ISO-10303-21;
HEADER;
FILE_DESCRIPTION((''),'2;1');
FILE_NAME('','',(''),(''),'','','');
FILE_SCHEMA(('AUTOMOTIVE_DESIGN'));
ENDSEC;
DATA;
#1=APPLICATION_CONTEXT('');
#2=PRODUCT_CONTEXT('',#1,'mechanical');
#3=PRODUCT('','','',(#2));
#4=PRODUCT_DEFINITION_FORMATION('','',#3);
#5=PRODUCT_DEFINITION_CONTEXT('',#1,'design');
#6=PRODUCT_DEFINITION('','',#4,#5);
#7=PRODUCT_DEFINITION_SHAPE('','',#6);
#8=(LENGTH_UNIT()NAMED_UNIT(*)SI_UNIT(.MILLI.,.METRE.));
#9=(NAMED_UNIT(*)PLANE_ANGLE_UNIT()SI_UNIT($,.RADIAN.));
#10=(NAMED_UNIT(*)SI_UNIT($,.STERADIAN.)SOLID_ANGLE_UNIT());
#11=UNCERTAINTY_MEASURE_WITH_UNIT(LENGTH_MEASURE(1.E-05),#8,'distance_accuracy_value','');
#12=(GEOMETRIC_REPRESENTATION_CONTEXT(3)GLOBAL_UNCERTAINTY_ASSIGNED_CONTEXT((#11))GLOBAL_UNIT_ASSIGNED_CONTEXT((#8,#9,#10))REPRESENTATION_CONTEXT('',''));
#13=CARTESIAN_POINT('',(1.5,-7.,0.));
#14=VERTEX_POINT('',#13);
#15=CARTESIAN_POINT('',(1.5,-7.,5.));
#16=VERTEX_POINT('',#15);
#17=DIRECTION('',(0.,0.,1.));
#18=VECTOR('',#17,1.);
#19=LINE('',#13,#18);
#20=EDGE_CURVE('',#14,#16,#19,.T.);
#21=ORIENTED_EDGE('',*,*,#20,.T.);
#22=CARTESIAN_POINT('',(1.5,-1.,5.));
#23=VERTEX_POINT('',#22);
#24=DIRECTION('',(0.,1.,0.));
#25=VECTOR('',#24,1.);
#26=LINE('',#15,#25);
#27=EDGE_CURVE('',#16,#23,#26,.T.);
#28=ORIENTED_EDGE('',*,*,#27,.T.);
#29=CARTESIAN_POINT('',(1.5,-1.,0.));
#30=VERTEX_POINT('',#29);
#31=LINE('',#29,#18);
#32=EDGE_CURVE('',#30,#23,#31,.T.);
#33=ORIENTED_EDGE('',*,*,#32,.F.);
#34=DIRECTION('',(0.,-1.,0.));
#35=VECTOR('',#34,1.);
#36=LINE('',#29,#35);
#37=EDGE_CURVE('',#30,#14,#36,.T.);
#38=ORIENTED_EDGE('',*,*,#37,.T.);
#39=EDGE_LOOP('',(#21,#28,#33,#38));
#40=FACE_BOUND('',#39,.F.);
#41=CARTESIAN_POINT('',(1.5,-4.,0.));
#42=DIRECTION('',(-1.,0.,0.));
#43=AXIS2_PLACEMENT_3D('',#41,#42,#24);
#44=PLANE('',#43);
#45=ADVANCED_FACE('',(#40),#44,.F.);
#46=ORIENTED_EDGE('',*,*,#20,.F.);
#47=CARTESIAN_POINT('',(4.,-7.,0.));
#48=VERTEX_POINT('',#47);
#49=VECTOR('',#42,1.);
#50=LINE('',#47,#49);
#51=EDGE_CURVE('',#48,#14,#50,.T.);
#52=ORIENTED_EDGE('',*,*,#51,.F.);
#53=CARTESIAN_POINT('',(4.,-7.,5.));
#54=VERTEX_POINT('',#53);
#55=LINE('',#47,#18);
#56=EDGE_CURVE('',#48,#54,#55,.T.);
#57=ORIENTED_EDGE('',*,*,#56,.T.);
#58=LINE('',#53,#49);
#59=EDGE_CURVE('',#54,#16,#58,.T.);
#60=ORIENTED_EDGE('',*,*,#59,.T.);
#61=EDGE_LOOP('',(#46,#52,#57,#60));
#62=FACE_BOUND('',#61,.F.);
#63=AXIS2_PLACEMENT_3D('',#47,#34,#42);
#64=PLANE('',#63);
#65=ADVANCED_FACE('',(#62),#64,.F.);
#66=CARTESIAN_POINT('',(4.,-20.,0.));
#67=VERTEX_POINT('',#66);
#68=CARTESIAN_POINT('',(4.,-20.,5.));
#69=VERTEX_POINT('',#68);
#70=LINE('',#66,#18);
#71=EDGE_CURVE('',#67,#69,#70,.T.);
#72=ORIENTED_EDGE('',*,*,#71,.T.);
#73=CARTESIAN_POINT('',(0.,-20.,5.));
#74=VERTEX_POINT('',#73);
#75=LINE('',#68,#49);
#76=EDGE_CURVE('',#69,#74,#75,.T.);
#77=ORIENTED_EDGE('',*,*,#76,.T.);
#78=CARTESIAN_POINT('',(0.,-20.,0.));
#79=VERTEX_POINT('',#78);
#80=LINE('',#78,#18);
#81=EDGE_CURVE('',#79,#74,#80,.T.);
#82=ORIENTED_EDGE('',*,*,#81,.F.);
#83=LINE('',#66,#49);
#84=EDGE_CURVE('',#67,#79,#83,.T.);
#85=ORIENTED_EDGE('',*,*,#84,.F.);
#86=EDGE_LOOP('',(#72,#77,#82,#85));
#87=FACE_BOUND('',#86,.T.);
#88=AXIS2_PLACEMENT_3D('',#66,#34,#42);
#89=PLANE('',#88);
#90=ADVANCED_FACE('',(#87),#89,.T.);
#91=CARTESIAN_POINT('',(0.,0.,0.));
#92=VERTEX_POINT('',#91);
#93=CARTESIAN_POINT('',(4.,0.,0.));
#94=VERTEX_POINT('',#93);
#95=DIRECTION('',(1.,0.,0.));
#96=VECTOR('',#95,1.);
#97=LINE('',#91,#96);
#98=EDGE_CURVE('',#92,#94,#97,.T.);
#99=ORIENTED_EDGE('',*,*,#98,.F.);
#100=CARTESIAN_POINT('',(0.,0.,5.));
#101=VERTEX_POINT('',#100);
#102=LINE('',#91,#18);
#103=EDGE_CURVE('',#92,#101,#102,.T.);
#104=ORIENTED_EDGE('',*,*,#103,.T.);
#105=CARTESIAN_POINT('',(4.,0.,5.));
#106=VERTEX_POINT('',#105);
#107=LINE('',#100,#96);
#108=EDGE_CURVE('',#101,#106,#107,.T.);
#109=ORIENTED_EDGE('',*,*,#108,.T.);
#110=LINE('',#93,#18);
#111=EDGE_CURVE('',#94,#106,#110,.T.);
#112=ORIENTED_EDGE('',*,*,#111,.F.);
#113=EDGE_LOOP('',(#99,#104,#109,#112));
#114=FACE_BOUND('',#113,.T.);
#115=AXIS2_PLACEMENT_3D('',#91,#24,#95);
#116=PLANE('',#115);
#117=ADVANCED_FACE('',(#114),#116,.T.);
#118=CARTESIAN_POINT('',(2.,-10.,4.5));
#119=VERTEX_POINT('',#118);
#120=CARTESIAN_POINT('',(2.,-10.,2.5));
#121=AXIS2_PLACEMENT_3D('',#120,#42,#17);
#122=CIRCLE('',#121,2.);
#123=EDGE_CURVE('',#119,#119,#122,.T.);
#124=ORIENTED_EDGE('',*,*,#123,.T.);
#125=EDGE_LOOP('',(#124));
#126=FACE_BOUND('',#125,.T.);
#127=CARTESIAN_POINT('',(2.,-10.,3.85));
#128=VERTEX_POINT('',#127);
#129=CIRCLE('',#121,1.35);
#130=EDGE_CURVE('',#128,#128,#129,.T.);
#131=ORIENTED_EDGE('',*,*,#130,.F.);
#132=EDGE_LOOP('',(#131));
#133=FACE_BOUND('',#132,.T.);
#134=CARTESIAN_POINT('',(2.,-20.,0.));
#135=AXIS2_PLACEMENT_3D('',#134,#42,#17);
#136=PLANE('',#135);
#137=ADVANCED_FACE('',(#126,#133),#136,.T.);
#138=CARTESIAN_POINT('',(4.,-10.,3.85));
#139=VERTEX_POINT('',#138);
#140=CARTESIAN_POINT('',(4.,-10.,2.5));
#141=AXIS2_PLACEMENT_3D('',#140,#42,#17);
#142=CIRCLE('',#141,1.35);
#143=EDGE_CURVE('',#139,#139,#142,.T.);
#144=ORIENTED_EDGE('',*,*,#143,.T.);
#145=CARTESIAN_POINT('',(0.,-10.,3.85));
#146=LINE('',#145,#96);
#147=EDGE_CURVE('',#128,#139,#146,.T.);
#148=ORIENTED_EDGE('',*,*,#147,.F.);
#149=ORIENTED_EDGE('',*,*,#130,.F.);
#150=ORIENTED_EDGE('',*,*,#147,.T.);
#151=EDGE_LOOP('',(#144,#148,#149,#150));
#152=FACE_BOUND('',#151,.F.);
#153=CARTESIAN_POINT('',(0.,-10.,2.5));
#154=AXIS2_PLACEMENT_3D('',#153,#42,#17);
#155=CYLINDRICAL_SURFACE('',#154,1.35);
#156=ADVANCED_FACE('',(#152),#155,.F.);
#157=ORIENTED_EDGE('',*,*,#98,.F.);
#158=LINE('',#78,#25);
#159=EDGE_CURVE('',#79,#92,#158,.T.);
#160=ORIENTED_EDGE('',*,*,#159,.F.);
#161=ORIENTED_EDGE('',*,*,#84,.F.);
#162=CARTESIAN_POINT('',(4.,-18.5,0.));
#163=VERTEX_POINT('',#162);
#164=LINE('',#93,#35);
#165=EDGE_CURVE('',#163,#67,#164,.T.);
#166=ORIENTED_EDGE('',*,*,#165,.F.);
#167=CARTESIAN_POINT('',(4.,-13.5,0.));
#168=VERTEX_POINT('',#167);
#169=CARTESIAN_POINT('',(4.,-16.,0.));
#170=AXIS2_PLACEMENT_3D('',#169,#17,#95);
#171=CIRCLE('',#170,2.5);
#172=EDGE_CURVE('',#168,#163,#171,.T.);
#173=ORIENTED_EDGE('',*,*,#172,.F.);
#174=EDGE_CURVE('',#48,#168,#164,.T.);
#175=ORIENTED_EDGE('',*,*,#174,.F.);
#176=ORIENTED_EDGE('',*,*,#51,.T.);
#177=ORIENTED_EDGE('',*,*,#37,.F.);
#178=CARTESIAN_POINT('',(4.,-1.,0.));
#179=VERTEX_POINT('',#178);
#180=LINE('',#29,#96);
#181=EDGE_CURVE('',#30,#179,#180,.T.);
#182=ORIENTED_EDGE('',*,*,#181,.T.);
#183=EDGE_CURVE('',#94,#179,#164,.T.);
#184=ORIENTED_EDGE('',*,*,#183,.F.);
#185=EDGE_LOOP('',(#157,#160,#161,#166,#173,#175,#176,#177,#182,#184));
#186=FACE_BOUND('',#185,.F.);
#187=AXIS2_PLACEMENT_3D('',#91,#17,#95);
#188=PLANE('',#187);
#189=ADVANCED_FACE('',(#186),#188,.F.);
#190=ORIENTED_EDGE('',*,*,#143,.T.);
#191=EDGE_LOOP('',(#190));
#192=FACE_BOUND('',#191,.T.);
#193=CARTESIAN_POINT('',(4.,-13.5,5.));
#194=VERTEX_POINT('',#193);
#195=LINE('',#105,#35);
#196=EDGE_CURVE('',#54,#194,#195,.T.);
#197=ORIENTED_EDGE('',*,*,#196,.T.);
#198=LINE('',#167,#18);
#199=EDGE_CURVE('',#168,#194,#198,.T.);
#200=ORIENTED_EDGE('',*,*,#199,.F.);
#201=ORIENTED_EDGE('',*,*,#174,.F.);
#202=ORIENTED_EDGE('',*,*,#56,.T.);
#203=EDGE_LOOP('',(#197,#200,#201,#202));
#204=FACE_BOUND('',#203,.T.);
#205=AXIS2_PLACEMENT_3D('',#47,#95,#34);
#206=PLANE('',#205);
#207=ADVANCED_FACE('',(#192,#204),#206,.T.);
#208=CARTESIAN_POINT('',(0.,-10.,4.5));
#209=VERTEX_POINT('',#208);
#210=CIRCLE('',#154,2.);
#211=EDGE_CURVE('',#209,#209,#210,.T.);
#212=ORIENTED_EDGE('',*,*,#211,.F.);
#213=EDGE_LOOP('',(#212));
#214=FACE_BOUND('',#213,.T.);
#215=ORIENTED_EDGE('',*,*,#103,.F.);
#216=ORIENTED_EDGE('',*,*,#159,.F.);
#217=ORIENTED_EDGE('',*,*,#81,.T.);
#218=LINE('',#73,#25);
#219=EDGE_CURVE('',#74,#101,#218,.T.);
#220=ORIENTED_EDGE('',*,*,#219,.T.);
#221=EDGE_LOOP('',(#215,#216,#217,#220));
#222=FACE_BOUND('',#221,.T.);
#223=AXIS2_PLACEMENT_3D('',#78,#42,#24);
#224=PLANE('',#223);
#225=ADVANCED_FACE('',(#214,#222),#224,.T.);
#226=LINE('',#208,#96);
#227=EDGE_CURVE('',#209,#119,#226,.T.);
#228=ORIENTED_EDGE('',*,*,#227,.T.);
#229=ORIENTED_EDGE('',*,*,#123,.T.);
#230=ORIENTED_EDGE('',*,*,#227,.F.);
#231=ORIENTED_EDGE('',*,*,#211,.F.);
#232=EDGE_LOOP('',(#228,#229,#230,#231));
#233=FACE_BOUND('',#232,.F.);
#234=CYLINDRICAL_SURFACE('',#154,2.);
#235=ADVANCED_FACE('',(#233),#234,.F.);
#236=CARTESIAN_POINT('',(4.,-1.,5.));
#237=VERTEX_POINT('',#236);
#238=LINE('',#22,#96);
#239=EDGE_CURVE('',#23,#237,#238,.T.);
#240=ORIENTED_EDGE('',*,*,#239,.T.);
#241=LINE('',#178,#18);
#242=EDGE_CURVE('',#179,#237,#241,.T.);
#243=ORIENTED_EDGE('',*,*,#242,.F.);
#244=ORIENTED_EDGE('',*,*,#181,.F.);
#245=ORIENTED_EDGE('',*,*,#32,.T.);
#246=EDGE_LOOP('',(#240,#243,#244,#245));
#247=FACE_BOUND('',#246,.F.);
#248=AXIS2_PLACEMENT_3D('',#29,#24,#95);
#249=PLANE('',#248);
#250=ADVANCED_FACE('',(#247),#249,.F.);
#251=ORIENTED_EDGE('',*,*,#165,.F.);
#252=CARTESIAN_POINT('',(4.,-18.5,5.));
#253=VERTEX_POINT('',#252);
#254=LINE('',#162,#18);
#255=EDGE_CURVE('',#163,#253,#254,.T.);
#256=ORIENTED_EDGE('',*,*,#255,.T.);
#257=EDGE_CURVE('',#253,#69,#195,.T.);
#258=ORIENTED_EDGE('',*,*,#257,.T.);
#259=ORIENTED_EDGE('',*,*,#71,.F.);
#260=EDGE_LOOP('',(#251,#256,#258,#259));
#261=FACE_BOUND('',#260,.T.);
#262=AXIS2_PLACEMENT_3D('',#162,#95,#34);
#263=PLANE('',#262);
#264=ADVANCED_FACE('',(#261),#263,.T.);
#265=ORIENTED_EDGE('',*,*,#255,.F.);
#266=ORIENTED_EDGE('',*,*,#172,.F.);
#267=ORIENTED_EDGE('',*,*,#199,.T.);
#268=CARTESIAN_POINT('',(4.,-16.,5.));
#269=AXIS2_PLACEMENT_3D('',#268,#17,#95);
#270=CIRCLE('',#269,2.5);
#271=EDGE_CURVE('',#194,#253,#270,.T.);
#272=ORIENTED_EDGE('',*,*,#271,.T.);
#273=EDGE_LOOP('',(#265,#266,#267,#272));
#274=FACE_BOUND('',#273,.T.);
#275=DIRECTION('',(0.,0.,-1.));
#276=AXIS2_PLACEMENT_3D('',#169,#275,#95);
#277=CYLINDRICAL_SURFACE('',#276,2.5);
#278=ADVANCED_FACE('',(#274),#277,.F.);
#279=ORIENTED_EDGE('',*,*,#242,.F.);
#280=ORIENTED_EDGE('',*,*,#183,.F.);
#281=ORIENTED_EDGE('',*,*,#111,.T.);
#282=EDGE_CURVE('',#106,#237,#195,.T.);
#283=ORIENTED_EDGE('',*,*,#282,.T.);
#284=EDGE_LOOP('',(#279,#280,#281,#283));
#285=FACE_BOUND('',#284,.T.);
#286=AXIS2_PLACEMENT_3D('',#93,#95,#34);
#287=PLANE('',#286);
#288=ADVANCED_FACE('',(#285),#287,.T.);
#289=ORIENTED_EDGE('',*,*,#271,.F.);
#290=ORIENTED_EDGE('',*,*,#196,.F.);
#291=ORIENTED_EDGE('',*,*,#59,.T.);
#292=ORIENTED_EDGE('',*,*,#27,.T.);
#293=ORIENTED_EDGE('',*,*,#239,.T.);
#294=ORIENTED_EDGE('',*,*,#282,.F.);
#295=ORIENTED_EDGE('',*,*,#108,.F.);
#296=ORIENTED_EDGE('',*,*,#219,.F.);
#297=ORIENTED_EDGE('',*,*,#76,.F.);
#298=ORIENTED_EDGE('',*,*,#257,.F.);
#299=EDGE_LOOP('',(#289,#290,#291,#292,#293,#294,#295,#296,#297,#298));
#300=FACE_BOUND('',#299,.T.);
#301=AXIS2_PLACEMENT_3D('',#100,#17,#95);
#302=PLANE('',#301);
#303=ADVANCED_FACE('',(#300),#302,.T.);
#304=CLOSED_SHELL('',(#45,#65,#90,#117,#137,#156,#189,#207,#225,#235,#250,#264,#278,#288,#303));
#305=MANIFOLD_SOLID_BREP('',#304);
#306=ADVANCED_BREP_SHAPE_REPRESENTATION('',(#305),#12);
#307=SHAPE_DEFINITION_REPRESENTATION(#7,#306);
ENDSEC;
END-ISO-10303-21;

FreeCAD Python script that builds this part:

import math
import FreeCAD as App
import Part
import Sketcher
Q = App.Units.Quantity

doc = App.newDocument("Part")
params = doc.addObject("Spreadsheet::Sheet", "Params")
for row, (alias, value) in enumerate([
    ("sketch1_radius", "2.5 mm"),
    ("sketch1_width", "4 mm"),
    ("sketch1_height", "20 mm"),
    ("sketch1_height2", "6 mm"),
    ("sketch1_height3", "1 mm"),
    ("pad1_length", "5 mm"),
    ("sketch2_diameter", "2.7 mm"),
    ("pocket1_length", "20 mm"),
    ("sketch3_diameter", "4 mm"),
    ("pocket2_length", "2 mm"),
], start=1):
    params.set(f"A{row}", alias)
    params.set(f"B{row}", "=" + value)
    params.setAlias(f"B{row}", alias)

body = doc.addObject("PartDesign::Body", "Body")

sketch1 = doc.addObject("Sketcher::SketchObject", "Sketch")
body.addObject(sketch1)
sketch1.AttachmentSupport = (doc.XY_Plane, [""])
sketch1.MapMode = "FlatFace"
sketch1.addGeometry([
    Part.LineSegment(App.Vector(4, 0, 0), App.Vector(0, 0, 0)),
    Part.LineSegment(App.Vector(0, 0, 0), App.Vector(0, -20, 0)),
    Part.LineSegment(App.Vector(0, -20, 0), App.Vector(4, -20, 0)),
    Part.LineSegment(App.Vector(4, -20, 0), App.Vector(4, -18.5, 0)),
    Part.ArcOfCircle(Part.Circle(App.Vector(4, -16, 0), App.Vector(0, 0, 1), 2.5), math.radians(90), math.radians(270)),
    Part.LineSegment(App.Vector(4, -13.5, 0), App.Vector(4, -7, 0)),
    Part.LineSegment(App.Vector(4, -7, 0), App.Vector(1.5, -7, 0)),
    Part.LineSegment(App.Vector(1.5, -7, 0), App.Vector(1.5, -1, 0)),
    Part.LineSegment(App.Vector(1.5, -1, 0), App.Vector(4, -1, 0)),
    Part.LineSegment(App.Vector(4, -1, 0), App.Vector(4, 0, 0)),
], False)
sketch1.addConstraint([
    Sketcher.Constraint("Coincident", 0, 2, 1, 1),
    Sketcher.Constraint("Coincident", 1, 2, 2, 1),
    Sketcher.Constraint("Coincident", 2, 2, 3, 1),
    Sketcher.Constraint("Coincident", 3, 2, 4, 2),
    Sketcher.Constraint("Coincident", 4, 1, 5, 1),
    Sketcher.Constraint("Coincident", 5, 2, 6, 1),
    Sketcher.Constraint("Coincident", 6, 2, 7, 1),
    Sketcher.Constraint("Coincident", 7, 2, 8, 1),
    Sketcher.Constraint("Coincident", 8, 2, 9, 1),
    Sketcher.Constraint("Coincident", 9, 2, 0, 1),
    Sketcher.Constraint("Horizontal", 0),
    Sketcher.Constraint("Vertical", 1),
    Sketcher.Constraint("Horizontal", 2),
    Sketcher.Constraint("Vertical", 3),
    Sketcher.Constraint("Vertical", 5),
    Sketcher.Constraint("Horizontal", 6),
    Sketcher.Constraint("Vertical", 7),
    Sketcher.Constraint("Horizontal", 8),
    Sketcher.Constraint("Vertical", 9),
    Sketcher.Constraint("Coincident", 0, 2, -1, 1),
    Sketcher.Constraint("Vertical", 4, 3, 2, 2),
    Sketcher.Constraint("Vertical", 3, 2, 4, 1),
    Sketcher.Constraint("Vertical", 5, 2, 8, 2),
    Sketcher.Constraint("Radius", 4, Q("2.5 mm")),
    Sketcher.Constraint("DistanceX", 0, 2, 0, 1, Q("4 mm")),
    Sketcher.Constraint("DistanceY", 1, 2, 1, 1, Q("20 mm")),
    Sketcher.Constraint("DistanceY", 1, 2, 4, 3, Q("4 mm")),
    Sketcher.Constraint("DistanceY", 7, 1, 7, 2, Q("6 mm")),
    Sketcher.Constraint("DistanceY", 9, 1, 9, 2, Q("1 mm")),
    Sketcher.Constraint("DistanceX", 6, 2, 6, 1, Q("2.5 mm")),
])
sketch1.setExpression("Constraints[23]", "Params.sketch1_radius")
sketch1.setExpression("Constraints[24]", "Params.sketch1_width")
sketch1.setExpression("Constraints[25]", "Params.sketch1_height")
sketch1.setExpression("Constraints[27]", "Params.sketch1_height2")
sketch1.setExpression("Constraints[28]", "Params.sketch1_height3")
pad1 = doc.addObject("PartDesign::Pad", "Pad")
body.addObject(pad1)
pad1.Profile = sketch1
pad1.setExpression("Length", "Params.pad1_length")

sketch2 = doc.addObject("Sketcher::SketchObject", "Sketch001")
body.addObject(sketch2)
sketch2.AttachmentSupport = (doc.YZ_Plane, [""])
sketch2.MapMode = "FlatFace"
sketch2.addGeometry(Part.Circle(App.Vector(-10, 2.5, 0), App.Vector(0, 0, 1), 1.4), False)
sketch2.addConstraint([
    Sketcher.Constraint("Diameter", 0, Q("2.7 mm")),
    Sketcher.Constraint("DistanceX", 0, 3, -1, 1, Q("10 mm")),
    Sketcher.Constraint("DistanceY", -1, 1, 0, 3, Q("2.5 mm")),
])
sketch2.setExpression("Constraints[0]", "Params.sketch2_diameter")
pocket1 = doc.addObject("PartDesign::Pocket", "Pocket")
body.addObject(pocket1)
pocket1.Profile = sketch2
pocket1.setExpression("Length", "Params.pocket1_length")
pocket1.Reversed = True

sketch3 = doc.addObject("Sketcher::SketchObject", "Sketch002")
body.addObject(sketch3)
sketch3.AttachmentSupport = (doc.YZ_Plane, [""])
sketch3.MapMode = "FlatFace"
sketch3.addGeometry(Part.Circle(App.Vector(-10, 2.5, 0), App.Vector(0, 0, 1), 2), False)
sketch3.addConstraint([
    Sketcher.Constraint("Diameter", 0, Q("4 mm")),
    Sketcher.Constraint("DistanceX", 0, 3, -1, 1, Q("10 mm")),
    Sketcher.Constraint("DistanceY", -1, 1, 0, 3, Q("2.5 mm")),
])
sketch3.setExpression("Constraints[0]", "Params.sketch3_diameter")
pocket2 = doc.addObject("PartDesign::Pocket", "Pocket001")
body.addObject(pocket2)
pocket2.Profile = sketch3
pocket2.setExpression("Length", "Params.pocket2_length")
pocket2.Reversed = True

doc.recompute()
